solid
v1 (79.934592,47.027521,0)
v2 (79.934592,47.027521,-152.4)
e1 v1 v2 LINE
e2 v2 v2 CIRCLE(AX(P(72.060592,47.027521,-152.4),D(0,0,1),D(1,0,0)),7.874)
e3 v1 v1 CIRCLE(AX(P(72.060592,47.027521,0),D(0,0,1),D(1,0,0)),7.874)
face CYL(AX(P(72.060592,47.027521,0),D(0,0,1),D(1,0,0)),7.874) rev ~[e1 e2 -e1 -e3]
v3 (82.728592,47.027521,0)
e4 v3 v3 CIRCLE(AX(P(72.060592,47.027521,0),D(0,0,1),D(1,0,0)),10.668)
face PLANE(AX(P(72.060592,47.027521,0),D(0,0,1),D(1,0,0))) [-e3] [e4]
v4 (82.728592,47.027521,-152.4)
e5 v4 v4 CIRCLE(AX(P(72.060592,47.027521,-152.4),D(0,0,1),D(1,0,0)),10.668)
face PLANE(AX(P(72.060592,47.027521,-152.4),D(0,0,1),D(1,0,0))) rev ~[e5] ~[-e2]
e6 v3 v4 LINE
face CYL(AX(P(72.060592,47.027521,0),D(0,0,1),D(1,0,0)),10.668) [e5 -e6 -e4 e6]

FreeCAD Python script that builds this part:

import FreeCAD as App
import Part
import Sketcher
Q = App.Units.Quantity

doc = App.newDocument("Part")
body = doc.addObject("PartDesign::Body", "Body")

# Sketch on XY plane
sketch1 = body.newObject("Sketcher::SketchObject", "Sketch")
sketch1.AttachmentSupport = (doc.getObject("XY_Plane"), [""])
sketch1.MapMode = "FlatFace"
sketch1.addGeometry([
    Part.Circle(App.Vector(72, 47, 0), App.Vector(0, 0, 1), 11),
    Part.Circle(App.Vector(72, 47, 0), App.Vector(0, 0, 1), 8),
], False)
sketch1.addConstraint([
    Sketcher.Constraint("Coincident", 1, 3, 0, 3),
    Sketcher.Constraint("Diameter", 0, Q("0.84 in")),
    Sketcher.Constraint("Diameter", 1, Q("0.62 in")),
    Sketcher.Constraint("DistanceX", -1, 1, 0, 3, Q("72.060592 mm")),
    Sketcher.Constraint("DistanceY", -1, 1, 0, 3, Q("47.027521 mm")),
])
pad1 = body.newObject("PartDesign::Pad", "Pad")
pad1.Profile = sketch1
pad1.Length = Q("6 in")
pad1.Reversed = True

doc.recompute()
